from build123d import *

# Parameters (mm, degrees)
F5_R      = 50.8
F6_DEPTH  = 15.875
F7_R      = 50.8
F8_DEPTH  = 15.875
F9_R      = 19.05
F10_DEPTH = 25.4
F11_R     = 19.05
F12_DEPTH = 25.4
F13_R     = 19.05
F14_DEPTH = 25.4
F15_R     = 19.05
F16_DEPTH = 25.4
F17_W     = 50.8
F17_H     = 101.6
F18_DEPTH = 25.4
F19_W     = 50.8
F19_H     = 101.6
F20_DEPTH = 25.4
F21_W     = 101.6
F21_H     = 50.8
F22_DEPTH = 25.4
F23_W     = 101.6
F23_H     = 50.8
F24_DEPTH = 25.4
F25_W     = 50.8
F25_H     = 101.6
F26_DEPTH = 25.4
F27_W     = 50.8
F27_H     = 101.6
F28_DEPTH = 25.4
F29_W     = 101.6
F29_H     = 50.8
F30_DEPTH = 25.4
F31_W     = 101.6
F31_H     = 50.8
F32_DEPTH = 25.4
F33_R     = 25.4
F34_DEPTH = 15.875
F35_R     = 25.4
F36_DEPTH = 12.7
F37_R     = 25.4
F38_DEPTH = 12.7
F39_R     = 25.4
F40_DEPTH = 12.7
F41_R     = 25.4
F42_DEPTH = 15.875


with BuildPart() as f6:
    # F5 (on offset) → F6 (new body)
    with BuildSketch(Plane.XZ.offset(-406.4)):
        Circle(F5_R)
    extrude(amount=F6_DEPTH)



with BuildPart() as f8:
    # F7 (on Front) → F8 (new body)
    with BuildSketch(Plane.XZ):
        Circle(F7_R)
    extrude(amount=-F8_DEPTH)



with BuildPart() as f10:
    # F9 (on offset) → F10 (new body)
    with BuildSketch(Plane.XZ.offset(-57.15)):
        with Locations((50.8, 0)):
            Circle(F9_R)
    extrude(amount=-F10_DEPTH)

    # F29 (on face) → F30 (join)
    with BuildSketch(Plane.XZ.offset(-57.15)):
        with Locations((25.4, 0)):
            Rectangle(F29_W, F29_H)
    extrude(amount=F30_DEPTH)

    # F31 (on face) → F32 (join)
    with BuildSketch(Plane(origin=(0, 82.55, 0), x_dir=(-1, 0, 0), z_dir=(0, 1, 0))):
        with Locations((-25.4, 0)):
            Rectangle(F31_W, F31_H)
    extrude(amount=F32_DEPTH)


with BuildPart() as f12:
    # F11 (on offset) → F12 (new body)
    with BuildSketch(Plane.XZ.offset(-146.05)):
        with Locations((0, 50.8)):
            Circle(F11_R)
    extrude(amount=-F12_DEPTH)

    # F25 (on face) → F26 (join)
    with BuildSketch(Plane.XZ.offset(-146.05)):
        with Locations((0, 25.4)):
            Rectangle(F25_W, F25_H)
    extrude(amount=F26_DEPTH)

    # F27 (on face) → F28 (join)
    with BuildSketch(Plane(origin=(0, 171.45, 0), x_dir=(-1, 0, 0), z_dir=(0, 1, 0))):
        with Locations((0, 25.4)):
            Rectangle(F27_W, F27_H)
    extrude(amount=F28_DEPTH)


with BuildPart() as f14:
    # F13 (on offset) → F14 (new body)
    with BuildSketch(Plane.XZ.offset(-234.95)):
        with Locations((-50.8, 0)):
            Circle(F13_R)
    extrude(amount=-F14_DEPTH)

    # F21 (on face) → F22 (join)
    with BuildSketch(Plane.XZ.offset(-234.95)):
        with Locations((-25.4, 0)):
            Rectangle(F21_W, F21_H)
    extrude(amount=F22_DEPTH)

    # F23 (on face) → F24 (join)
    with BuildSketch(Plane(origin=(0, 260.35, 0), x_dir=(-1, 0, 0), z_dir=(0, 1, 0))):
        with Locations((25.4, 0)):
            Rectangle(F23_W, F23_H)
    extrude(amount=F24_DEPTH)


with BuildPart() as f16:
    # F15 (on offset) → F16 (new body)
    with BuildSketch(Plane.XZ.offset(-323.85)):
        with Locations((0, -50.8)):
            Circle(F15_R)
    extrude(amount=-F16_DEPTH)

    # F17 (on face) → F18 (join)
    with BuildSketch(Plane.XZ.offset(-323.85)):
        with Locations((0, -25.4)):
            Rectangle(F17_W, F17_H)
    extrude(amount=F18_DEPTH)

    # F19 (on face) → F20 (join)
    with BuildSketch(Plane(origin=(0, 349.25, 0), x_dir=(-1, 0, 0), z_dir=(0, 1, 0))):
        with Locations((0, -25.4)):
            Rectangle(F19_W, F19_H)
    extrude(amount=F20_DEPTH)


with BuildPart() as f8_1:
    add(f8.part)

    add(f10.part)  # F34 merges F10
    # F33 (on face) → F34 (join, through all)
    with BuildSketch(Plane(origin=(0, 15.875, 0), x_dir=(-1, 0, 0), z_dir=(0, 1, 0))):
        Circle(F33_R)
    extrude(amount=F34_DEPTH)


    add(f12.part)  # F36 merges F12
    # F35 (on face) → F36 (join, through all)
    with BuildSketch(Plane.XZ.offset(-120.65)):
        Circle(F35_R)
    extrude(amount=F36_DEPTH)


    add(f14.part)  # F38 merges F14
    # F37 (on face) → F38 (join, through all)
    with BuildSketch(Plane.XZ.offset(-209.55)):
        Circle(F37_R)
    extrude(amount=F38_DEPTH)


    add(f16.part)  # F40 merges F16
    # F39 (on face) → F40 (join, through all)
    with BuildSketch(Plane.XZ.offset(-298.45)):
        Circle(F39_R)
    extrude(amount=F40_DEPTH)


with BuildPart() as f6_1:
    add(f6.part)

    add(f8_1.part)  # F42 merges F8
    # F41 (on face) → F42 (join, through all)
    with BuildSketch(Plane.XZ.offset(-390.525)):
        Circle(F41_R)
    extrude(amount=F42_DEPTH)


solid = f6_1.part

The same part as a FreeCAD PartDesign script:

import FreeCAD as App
import Part
import Sketcher

V = App.Vector
Q = App.Units.Quantity

doc = App.newDocument("Part")
body = doc.addObject("PartDesign::Body", "Body")

sketch1 = body.newObject("Sketcher::SketchObject", "Sketch")
sketch1.AttachmentSupport = (doc.getObject("XZ_Plane"), [""])
sketch1.MapMode = "FlatFace"
sketch1.AttachmentOffset = App.Placement(V(0, 0, -16 * 25.4), App.Rotation())
sketch1.addGeometry(Part.Circle(V(0, 0, 0), V(0, 0, 1), 51), False)
sketch1.addConstraint([
    Sketcher.Constraint("Coincident", 0, 3, -1, 1),
    Sketcher.Constraint("Diameter", 0, Q("4 in")),
])
pad1 = body.newObject("PartDesign::Pad", "Pad")
pad1.Profile = sketch1
pad1.Length = Q("0.625 in")
body2 = doc.addObject("PartDesign::Body", "Body001")

sketch2 = body2.newObject("Sketcher::SketchObject", "Sketch001")
sketch2.AttachmentSupport = (doc.getObject("XZ_Plane001"), [""])
sketch2.MapMode = "FlatFace"
sketch2.addGeometry(Part.Circle(V(0, 0, 0), V(0, 0, 1), 51), False)
sketch2.addConstraint([
    Sketcher.Constraint("Coincident", 0, 3, -1, 1),
    Sketcher.Constraint("Diameter", 0, Q("4 in")),
])
pad2 = body2.newObject("PartDesign::Pad", "Pad001")
pad2.Profile = sketch2
pad2.Length = Q("0.625 in")
pad2.Reversed = True
body3 = doc.addObject("PartDesign::Body", "Body002")

sketch3 = body3.newObject("Sketcher::SketchObject", "Sketch002")
sketch3.AttachmentSupport = (doc.getObject("XZ_Plane002"), [""])
sketch3.MapMode = "FlatFace"
sketch3.AttachmentOffset = App.Placement(V(0, 0, -2.25 * 25.4), App.Rotation())
sketch3.addGeometry(Part.Circle(V(51, 0, 0), V(0, 0, 1), 19), False)
sketch3.addConstraint([
    Sketcher.Constraint("PointOnObject", 0, 3, -1),
    Sketcher.Constraint("Diameter", 0, Q("1.5 in")),
    Sketcher.Constraint("DistanceX", -1, 1, 0, 3, Q("2 in")),
])
pad3 = body3.newObject("PartDesign::Pad", "Pad002")
pad3.Profile = sketch3
pad3.Length = Q("1 in")
pad3.Reversed = True

sketch4 = body3.newObject("Sketcher::SketchObject", "Sketch003")
sketch4.AttachmentSupport = (doc.getObject("XZ_Plane002"), [""])
sketch4.MapMode = "FlatFace"
sketch4.AttachmentOffset = App.Placement(V(0, 0, -2.25 * 25.4), App.Rotation())
sketch4.addGeometry([
    Part.LineSegment(V(-25, 25, 0), V(-25, -25, 0)),
    Part.LineSegment(V(-25, -25, 0), V(76, -25, 0)),
    Part.LineSegment(V(76, -25, 0), V(76, 25, 0)),
    Part.LineSegment(V(76, 25, 0), V(-25, 25, 0)),
], False)
sketch4.addConstraint([
    Sketcher.Constraint("Coincident", 0, 2, 1, 1),
    Sketcher.Constraint("Coincident", 1, 2, 2, 1),
    Sketcher.Constraint("Coincident", 2, 2, 3, 1),
    Sketcher.Constraint("Coincident", 3, 2, 0, 1),
    Sketcher.Constraint("Vertical", 0),
    Sketcher.Constraint("Horizontal", 1),
    Sketcher.Constraint("Vertical", 2),
    Sketcher.Constraint("Horizontal", 3),
    Sketcher.Constraint("DistanceX", 1, 1, 1, 2, Q("4 in")),
    Sketcher.Constraint("DistanceY", 0, 2, 0, 1, Q("2 in")),
    Sketcher.Constraint("DistanceX", 0, 2, -1, 1, Q("1 in")),
    Sketcher.Constraint("DistanceY", 0, 2, -1, 1, Q("1 in")),
])
pad4 = body3.newObject("PartDesign::Pad", "Pad003")
pad4.Profile = sketch4
pad4.Length = Q("1 in")

sketch5 = body3.newObject("Sketcher::SketchObject", "Sketch004")
sketch5.AttachmentSupport = (doc.getObject("XZ_Plane002"), [""])
sketch5.MapMode = "FlatFace"
sketch5.AttachmentOffset = App.Placement(V(0, 0, -3.25 * 25.4), App.Rotation())
sketch5.addGeometry([
    Part.LineSegment(V(76, 25, 0), V(76, -25, 0)),
    Part.LineSegment(V(76, -25, 0), V(-25, -25, 0)),
    Part.LineSegment(V(-25, -25, 0), V(-25, 25, 0)),
    Part.LineSegment(V(-25, 25, 0), V(76, 25, 0)),
], False)
sketch5.addConstraint([
    Sketcher.Constraint("Coincident", 0, 2, 1, 1),
    Sketcher.Constraint("Coincident", 1, 2, 2, 1),
    Sketcher.Constraint("Coincident", 2, 2, 3, 1),
    Sketcher.Constraint("Coincident", 3, 2, 0, 1),
    Sketcher.Constraint("Vertical", 0),
    Sketcher.Constraint("Horizontal", 1),
    Sketcher.Constraint("Vertical", 2),
    Sketcher.Constraint("Horizontal", 3),
    Sketcher.Constraint("DistanceX", 1, 2, 1, 1, Q("4 in")),
    Sketcher.Constraint("DistanceY", 0, 2, 0, 1, Q("2 in")),
    Sketcher.Constraint("DistanceX", -1, 1, 0, 2, Q("3 in")),
    Sketcher.Constraint("DistanceY", 0, 2, -1, 1, Q("1 in")),
])
pad5 = body3.newObject("PartDesign::Pad", "Pad004")
pad5.Profile = sketch5
pad5.Length = Q("1 in")
pad5.Reversed = True
body4 = doc.addObject("PartDesign::Body", "Body003")

sketch6 = body4.newObject("Sketcher::SketchObject", "Sketch005")
sketch6.AttachmentSupport = (doc.getObject("XZ_Plane003"), [""])
sketch6.MapMode = "FlatFace"
sketch6.AttachmentOffset = App.Placement(V(0, 0, -5.75 * 25.4), App.Rotation())
sketch6.addGeometry(Part.Circle(V(0, 51, 0), V(0, 0, 1), 19), False)
sketch6.addConstraint([
    Sketcher.Constraint("PointOnObject", 0, 3, -2),
    Sketcher.Constraint("Diameter", 0, Q("1.5 in")),
    Sketcher.Constraint("DistanceY", -1, 1, 0, 3, Q("2 in")),
])
pad6 = body4.newObject("PartDesign::Pad", "Pad005")
pad6.Profile = sketch6
pad6.Length = Q("1 in")
pad6.Reversed = True

sketch7 = body4.newObject("Sketcher::SketchObject", "Sketch006")
sketch7.AttachmentSupport = (doc.getObject("XZ_Plane003"), [""])
sketch7.MapMode = "FlatFace"
sketch7.AttachmentOffset = App.Placement(V(0, 0, -5.75 * 25.4), App.Rotation())
sketch7.addGeometry([
    Part.LineSegment(V(-25, 76, 0), V(-25, -25, 0)),
    Part.LineSegment(V(-25, -25, 0), V(25, -25, 0)),
    Part.LineSegment(V(25, -25, 0), V(25, 76, 0)),
    Part.LineSegment(V(25, 76, 0), V(-25, 76, 0)),
], False)
sketch7.addConstraint([
    Sketcher.Constraint("Coincident", 0, 2, 1, 1),
    Sketcher.Constraint("Coincident", 1, 2, 2, 1),
    Sketcher.Constraint("Coincident", 2, 2, 3, 1),
    Sketcher.Constraint("Coincident", 3, 2, 0, 1),
    Sketcher.Constraint("Vertical", 0),
    Sketcher.Constraint("Horizontal", 1),
    Sketcher.Constraint("Vertical", 2),
    Sketcher.Constraint("Horizontal", 3),
    Sketcher.Constraint("DistanceX", 1, 1, 1, 2, Q("2 in")),
    Sketcher.Constraint("DistanceY", 0, 2, 0, 1, Q("4 in")),
    Sketcher.Constraint("DistanceX", 0, 2, -1, 1, Q("1 in")),
    Sketcher.Constraint("DistanceY", 0, 2, -1, 1, Q("1 in")),
])
pad7 = body4.newObject("PartDesign::Pad", "Pad006")
pad7.Profile = sketch7
pad7.Length = Q("1 in")

sketch8 = body4.newObject("Sketcher::SketchObject", "Sketch007")
sketch8.AttachmentSupport = (doc.getObject("XZ_Plane003"), [""])
sketch8.MapMode = "FlatFace"
sketch8.AttachmentOffset = App.Placement(V(0, 0, -6.75 * 25.4), App.Rotation())
sketch8.addGeometry([
    Part.LineSegment(V(25, 76, 0), V(25, -25, 0)),
    Part.LineSegment(V(25, -25, 0), V(-25, -25, 0)),
    Part.LineSegment(V(-25, -25, 0), V(-25, 76, 0)),
    Part.LineSegment(V(-25, 76, 0), V(25, 76, 0)),
], False)
sketch8.addConstraint([
    Sketcher.Constraint("Coincident", 0, 2, 1, 1),
    Sketcher.Constraint("Coincident", 1, 2, 2, 1),
    Sketcher.Constraint("Coincident", 2, 2, 3, 1),
    Sketcher.Constraint("Coincident", 3, 2, 0, 1),
    Sketcher.Constraint("Vertical", 0),
    Sketcher.Constraint("Horizontal", 1),
    Sketcher.Constraint("Vertical", 2),
    Sketcher.Constraint("Horizontal", 3),
    Sketcher.Constraint("DistanceX", 1, 2, 1, 1, Q("2 in")),
    Sketcher.Constraint("DistanceY", 0, 2, 0, 1, Q("4 in")),
    Sketcher.Constraint("DistanceX", -1, 1, 0, 2, Q("1 in")),
    Sketcher.Constraint("DistanceY", 0, 2, -1, 1, Q("1 in")),
])
pad8 = body4.newObject("PartDesign::Pad", "Pad007")
pad8.Profile = sketch8
pad8.Length = Q("1 in")
pad8.Reversed = True
body5 = doc.addObject("PartDesign::Body", "Body004")

sketch9 = body5.newObject("Sketcher::SketchObject", "Sketch008")
sketch9.AttachmentSupport = (doc.getObject("XZ_Plane004"), [""])
sketch9.MapMode = "FlatFace"
sketch9.AttachmentOffset = App.Placement(V(0, 0, -9.25 * 25.4), App.Rotation())
sketch9.addGeometry(Part.Circle(V(-51, 0, 0), V(0, 0, 1), 19), False)
sketch9.addConstraint([
    Sketcher.Constraint("PointOnObject", 0, 3, -1),
    Sketcher.Constraint("Diameter", 0, Q("1.5 in")),
    Sketcher.Constraint("DistanceX", 0, 3, -1, 1, Q("2 in")),
])
pad9 = body5.newObject("PartDesign::Pad", "Pad008")
pad9.Profile = sketch9
pad9.Length = Q("1 in")
pad9.Reversed = True

sketch10 = body5.newObject("Sketcher::SketchObject", "Sketch009")
sketch10.AttachmentSupport = (doc.getObject("XZ_Plane004"), [""])
sketch10.MapMode = "FlatFace"
sketch10.AttachmentOffset = App.Placement(V(0, 0, -9.25 * 25.4), App.Rotation())
sketch10.addGeometry([
    Part.LineSegment(V(-76, 25, 0), V(-76, -25, 0)),
    Part.LineSegment(V(-76, -25, 0), V(25, -25, 0)),
    Part.LineSegment(V(25, -25, 0), V(25, 25, 0)),
    Part.LineSegment(V(25, 25, 0), V(-76, 25, 0)),
], False)
sketch10.addConstraint([
    Sketcher.Constraint("Coincident", 0, 2, 1, 1),
    Sketcher.Constraint("Coincident", 1, 2, 2, 1),
    Sketcher.Constraint("Coincident", 2, 2, 3, 1),
    Sketcher.Constraint("Coincident", 3, 2, 0, 1),
    Sketcher.Constraint("Vertical", 0),
    Sketcher.Constraint("Horizontal", 1),
    Sketcher.Constraint("Vertical", 2),
    Sketcher.Constraint("Horizontal", 3),
    Sketcher.Constraint("DistanceX", 1, 1, 1, 2, Q("4 in")),
    Sketcher.Constraint("DistanceY", 0, 2, 0, 1, Q("2 in")),
    Sketcher.Constraint("DistanceX", 0, 2, -1, 1, Q("3 in")),
    Sketcher.Constraint("DistanceY", 0, 2, -1, 1, Q("1 in")),
])
pad10 = body5.newObject("PartDesign::Pad", "Pad009")
pad10.Profile = sketch10
pad10.Length = Q("1 in")

sketch11 = body5.newObject("Sketcher::SketchObject", "Sketch010")
sketch11.AttachmentSupport = (doc.getObject("XZ_Plane004"), [""])
sketch11.MapMode = "FlatFace"
sketch11.AttachmentOffset = App.Placement(V(0, 0, -10.25 * 25.4), App.Rotation())
sketch11.addGeometry([
    Part.LineSegment(V(25, 25, 0), V(25, -25, 0)),
    Part.LineSegment(V(25, -25, 0), V(-76, -25, 0)),
    Part.LineSegment(V(-76, -25, 0), V(-76, 25, 0)),
    Part.LineSegment(V(-76, 25, 0), V(25, 25, 0)),
], False)
sketch11.addConstraint([
    Sketcher.Constraint("Coincident", 0, 2, 1, 1),
    Sketcher.Constraint("Coincident", 1, 2, 2, 1),
    Sketcher.Constraint("Coincident", 2, 2, 3, 1),
    Sketcher.Constraint("Coincident", 3, 2, 0, 1),
    Sketcher.Constraint("Vertical", 0),
    Sketcher.Constraint("Horizontal", 1),
    Sketcher.Constraint("Vertical", 2),
    Sketcher.Constraint("Horizontal", 3),
    Sketcher.Constraint("DistanceX", 1, 2, 1, 1, Q("4 in")),
    Sketcher.Constraint("DistanceY", 0, 2, 0, 1, Q("2 in")),
    Sketcher.Constraint("DistanceX", -1, 1, 0, 2, Q("1 in")),
    Sketcher.Constraint("DistanceY", 0, 2, -1, 1, Q("1 in")),
])
pad11 = body5.newObject("PartDesign::Pad", "Pad010")
pad11.Profile = sketch11
pad11.Length = Q("1 in")
pad11.Reversed = True
body6 = doc.addObject("PartDesign::Body", "Body005")

sketch12 = body6.newObject("Sketcher::SketchObject", "Sketch011")
sketch12.AttachmentSupport = (doc.getObject("XZ_Plane005"), [""])
sketch12.MapMode = "FlatFace"
sketch12.AttachmentOffset = App.Placement(V(0, 0, -12.75 * 25.4), App.Rotation())
sketch12.addGeometry(Part.Circle(V(0, -51, 0), V(0, 0, 1), 19), False)
sketch12.addConstraint([
    Sketcher.Constraint("PointOnObject", 0, 3, -2),
    Sketcher.Constraint("Diameter", 0, Q("1.5 in")),
    Sketcher.Constraint("DistanceY", 0, 3, -1, 1, Q("2 in")),
])
pad12 = body6.newObject("PartDesign::Pad", "Pad011")
pad12.Profile = sketch12
pad12.Length = Q("1 in")
pad12.Reversed = True

sketch13 = body6.newObject("Sketcher::SketchObject", "Sketch012")
sketch13.AttachmentSupport = (doc.getObject("XZ_Plane005"), [""])
sketch13.MapMode = "FlatFace"
sketch13.AttachmentOffset = App.Placement(V(0, 0, -12.75 * 25.4), App.Rotation())
sketch13.addGeometry([
    Part.LineSegment(V(-25, 25, 0), V(-25, -76, 0)),
    Part.LineSegment(V(-25, -76, 0), V(25, -76, 0)),
    Part.LineSegment(V(25, -76, 0), V(25, 25, 0)),
    Part.LineSegment(V(25, 25, 0), V(-25, 25, 0)),
], False)
sketch13.addConstraint([
    Sketcher.Constraint("Coincident", 0, 2, 1, 1),
    Sketcher.Constraint("Coincident", 1, 2, 2, 1),
    Sketcher.Constraint("Coincident", 2, 2, 3, 1),
    Sketcher.Constraint("Coincident", 3, 2, 0, 1),
    Sketcher.Constraint("Vertical", 0),
    Sketcher.Constraint("Horizontal", 1),
    Sketcher.Constraint("Vertical", 2),
    Sketcher.Constraint("Horizontal", 3),
    Sketcher.Constraint("DistanceX", 1, 1, 1, 2, Q("2 in")),
    Sketcher.Constraint("DistanceY", 0, 2, 0, 1, Q("4 in")),
    Sketcher.Constraint("DistanceX", 0, 2, -1, 1, Q("1 in")),
    Sketcher.Constraint("DistanceY", 0, 2, -1, 1, Q("3 in")),
])
pad13 = body6.newObject("PartDesign::Pad", "Pad012")
pad13.Profile = sketch13
pad13.Length = Q("1 in")

sketch14 = body6.newObject("Sketcher::SketchObject", "Sketch013")
sketch14.AttachmentSupport = (doc.getObject("XZ_Plane005"), [""])
sketch14.MapMode = "FlatFace"
sketch14.AttachmentOffset = App.Placement(V(0, 0, -13.75 * 25.4), App.Rotation())
sketch14.addGeometry([
    Part.LineSegment(V(25, 25, 0), V(25, -76, 0)),
    Part.LineSegment(V(25, -76, 0), V(-25, -76, 0)),
    Part.LineSegment(V(-25, -76, 0), V(-25, 25, 0)),
    Part.LineSegment(V(-25, 25, 0), V(25, 25, 0)),
], False)
sketch14.addConstraint([
    Sketcher.Constraint("Coincident", 0, 2, 1, 1),
    Sketcher.Constraint("Coincident", 1, 2, 2, 1),
    Sketcher.Constraint("Coincident", 2, 2, 3, 1),
    Sketcher.Constraint("Coincident", 3, 2, 0, 1),
    Sketcher.Constraint("Vertical", 0),
    Sketcher.Constraint("Horizontal", 1),
    Sketcher.Constraint("Vertical", 2),
    Sketcher.Constraint("Horizontal", 3),
    Sketcher.Constraint("DistanceX", 1, 2, 1, 1, Q("2 in")),
    Sketcher.Constraint("DistanceY", 0, 2, 0, 1, Q("4 in")),
    Sketcher.Constraint("DistanceX", -1, 1, 0, 2, Q("1 in")),
    Sketcher.Constraint("DistanceY", 0, 2, -1, 1, Q("3 in")),
])
pad14 = body6.newObject("PartDesign::Pad", "Pad013")
pad14.Profile = sketch14
pad14.Length = Q("1 in")
pad14.Reversed = True
body2.AllowCompound = True
doc.recompute()

boolean = body2.newObject("PartDesign::Boolean", "Boolean")
boolean.Type = "Fuse"
boolean.addObjects([body3])

sketch15 = body2.newObject("Sketcher::SketchObject", "Sketch014")
sketch15.AttachmentSupport = (doc.getObject("XZ_Plane001"), [""])
sketch15.MapMode = "FlatFace"
sketch15.AttachmentOffset = App.Placement(V(0, 0, -0.625 * 25.4), App.Rotation())
sketch15.addGeometry(Part.Circle(V(0, 0, 0), V(0, 0, 1), 25), False)
sketch15.addConstraint([
    Sketcher.Constraint("Coincident", 0, 3, -1, 1),
    Sketcher.Constraint("Diameter", 0, Q("2 in")),
])
pad15 = body2.newObject("PartDesign::Pad", "Pad014")
pad15.Profile = sketch15
pad15.Length = Q("0.625 in")
pad15.Reversed = True
doc.recompute()

boolean2 = body2.newObject("PartDesign::Boolean", "Boolean001")
boolean2.Type = "Fuse"
boolean2.addObjects([body4])

sketch16 = body2.newObject("Sketcher::SketchObject", "Sketch015")
sketch16.AttachmentSupport = (doc.getObject("XZ_Plane001"), [""])
sketch16.MapMode = "FlatFace"
sketch16.AttachmentOffset = App.Placement(V(0, 0, -4.75 * 25.4), App.Rotation())
sketch16.addGeometry(Part.Circle(V(0, 0, 0), V(0, 0, 1), 25), False)
sketch16.addConstraint([
    Sketcher.Constraint("Coincident", 0, 3, -1, 1),
    Sketcher.Constraint("Diameter", 0, Q("2 in")),
])
pad16 = body2.newObject("PartDesign::Pad", "Pad015")
pad16.Profile = sketch16
pad16.Length = Q("0.5 in")
doc.recompute()

boolean3 = body2.newObject("PartDesign::Boolean", "Boolean002")
boolean3.Type = "Fuse"
boolean3.addObjects([body5])

sketch17 = body2.newObject("Sketcher::SketchObject", "Sketch016")
sketch17.AttachmentSupport = (doc.getObject("XZ_Plane001"), [""])
sketch17.MapMode = "FlatFace"
sketch17.AttachmentOffset = App.Placement(V(0, 0, -8.25 * 25.4), App.Rotation())
sketch17.addGeometry(Part.Circle(V(0, 0, 0), V(0, 0, 1), 25), False)
sketch17.addConstraint([
    Sketcher.Constraint("Coincident", 0, 3, -1, 1),
    Sketcher.Constraint("Diameter", 0, Q("2 in")),
])
pad17 = body2.newObject("PartDesign::Pad", "Pad016")
pad17.Profile = sketch17
pad17.Length = Q("0.5 in")
doc.recompute()

boolean4 = body2.newObject("PartDesign::Boolean", "Boolean003")
boolean4.Type = "Fuse"
boolean4.addObjects([body6])

sketch18 = body2.newObject("Sketcher::SketchObject", "Sketch017")
sketch18.AttachmentSupport = (doc.getObject("XZ_Plane001"), [""])
sketch18.MapMode = "FlatFace"
sketch18.AttachmentOffset = App.Placement(V(0, 0, -11.75 * 25.4), App.Rotation())
sketch18.addGeometry(Part.Circle(V(0, 0, 0), V(0, 0, 1), 25), False)
sketch18.addConstraint([
    Sketcher.Constraint("Coincident", 0, 3, -1, 1),
    Sketcher.Constraint("Diameter", 0, Q("2 in")),
])
pad18 = body2.newObject("PartDesign::Pad", "Pad017")
pad18.Profile = sketch18
pad18.Length = Q("0.5 in")
body.AllowCompound = True
doc.recompute()

boolean5 = body.newObject("PartDesign::Boolean", "Boolean004")
boolean5.Type = "Fuse"
boolean5.addObjects([body2])

sketch19 = body.newObject("Sketcher::SketchObject", "Sketch018")
sketch19.AttachmentSupport = (doc.getObject("XZ_Plane"), [""])
sketch19.MapMode = "FlatFace"
sketch19.AttachmentOffset = App.Placement(V(0, 0, -15.375 * 25.4), App.Rotation())
sketch19.addGeometry(Part.Circle(V(0, 0, 0), V(0, 0, 1), 25), False)
sketch19.addConstraint([
    Sketcher.Constraint("Coincident", 0, 3, -1, 1),
    Sketcher.Constraint("Diameter", 0, Q("2 in")),
])
pad19 = body.newObject("PartDesign::Pad", "Pad018")
pad19.Profile = sketch19
pad19.Length = Q("0.625 in")

doc.recompute()
